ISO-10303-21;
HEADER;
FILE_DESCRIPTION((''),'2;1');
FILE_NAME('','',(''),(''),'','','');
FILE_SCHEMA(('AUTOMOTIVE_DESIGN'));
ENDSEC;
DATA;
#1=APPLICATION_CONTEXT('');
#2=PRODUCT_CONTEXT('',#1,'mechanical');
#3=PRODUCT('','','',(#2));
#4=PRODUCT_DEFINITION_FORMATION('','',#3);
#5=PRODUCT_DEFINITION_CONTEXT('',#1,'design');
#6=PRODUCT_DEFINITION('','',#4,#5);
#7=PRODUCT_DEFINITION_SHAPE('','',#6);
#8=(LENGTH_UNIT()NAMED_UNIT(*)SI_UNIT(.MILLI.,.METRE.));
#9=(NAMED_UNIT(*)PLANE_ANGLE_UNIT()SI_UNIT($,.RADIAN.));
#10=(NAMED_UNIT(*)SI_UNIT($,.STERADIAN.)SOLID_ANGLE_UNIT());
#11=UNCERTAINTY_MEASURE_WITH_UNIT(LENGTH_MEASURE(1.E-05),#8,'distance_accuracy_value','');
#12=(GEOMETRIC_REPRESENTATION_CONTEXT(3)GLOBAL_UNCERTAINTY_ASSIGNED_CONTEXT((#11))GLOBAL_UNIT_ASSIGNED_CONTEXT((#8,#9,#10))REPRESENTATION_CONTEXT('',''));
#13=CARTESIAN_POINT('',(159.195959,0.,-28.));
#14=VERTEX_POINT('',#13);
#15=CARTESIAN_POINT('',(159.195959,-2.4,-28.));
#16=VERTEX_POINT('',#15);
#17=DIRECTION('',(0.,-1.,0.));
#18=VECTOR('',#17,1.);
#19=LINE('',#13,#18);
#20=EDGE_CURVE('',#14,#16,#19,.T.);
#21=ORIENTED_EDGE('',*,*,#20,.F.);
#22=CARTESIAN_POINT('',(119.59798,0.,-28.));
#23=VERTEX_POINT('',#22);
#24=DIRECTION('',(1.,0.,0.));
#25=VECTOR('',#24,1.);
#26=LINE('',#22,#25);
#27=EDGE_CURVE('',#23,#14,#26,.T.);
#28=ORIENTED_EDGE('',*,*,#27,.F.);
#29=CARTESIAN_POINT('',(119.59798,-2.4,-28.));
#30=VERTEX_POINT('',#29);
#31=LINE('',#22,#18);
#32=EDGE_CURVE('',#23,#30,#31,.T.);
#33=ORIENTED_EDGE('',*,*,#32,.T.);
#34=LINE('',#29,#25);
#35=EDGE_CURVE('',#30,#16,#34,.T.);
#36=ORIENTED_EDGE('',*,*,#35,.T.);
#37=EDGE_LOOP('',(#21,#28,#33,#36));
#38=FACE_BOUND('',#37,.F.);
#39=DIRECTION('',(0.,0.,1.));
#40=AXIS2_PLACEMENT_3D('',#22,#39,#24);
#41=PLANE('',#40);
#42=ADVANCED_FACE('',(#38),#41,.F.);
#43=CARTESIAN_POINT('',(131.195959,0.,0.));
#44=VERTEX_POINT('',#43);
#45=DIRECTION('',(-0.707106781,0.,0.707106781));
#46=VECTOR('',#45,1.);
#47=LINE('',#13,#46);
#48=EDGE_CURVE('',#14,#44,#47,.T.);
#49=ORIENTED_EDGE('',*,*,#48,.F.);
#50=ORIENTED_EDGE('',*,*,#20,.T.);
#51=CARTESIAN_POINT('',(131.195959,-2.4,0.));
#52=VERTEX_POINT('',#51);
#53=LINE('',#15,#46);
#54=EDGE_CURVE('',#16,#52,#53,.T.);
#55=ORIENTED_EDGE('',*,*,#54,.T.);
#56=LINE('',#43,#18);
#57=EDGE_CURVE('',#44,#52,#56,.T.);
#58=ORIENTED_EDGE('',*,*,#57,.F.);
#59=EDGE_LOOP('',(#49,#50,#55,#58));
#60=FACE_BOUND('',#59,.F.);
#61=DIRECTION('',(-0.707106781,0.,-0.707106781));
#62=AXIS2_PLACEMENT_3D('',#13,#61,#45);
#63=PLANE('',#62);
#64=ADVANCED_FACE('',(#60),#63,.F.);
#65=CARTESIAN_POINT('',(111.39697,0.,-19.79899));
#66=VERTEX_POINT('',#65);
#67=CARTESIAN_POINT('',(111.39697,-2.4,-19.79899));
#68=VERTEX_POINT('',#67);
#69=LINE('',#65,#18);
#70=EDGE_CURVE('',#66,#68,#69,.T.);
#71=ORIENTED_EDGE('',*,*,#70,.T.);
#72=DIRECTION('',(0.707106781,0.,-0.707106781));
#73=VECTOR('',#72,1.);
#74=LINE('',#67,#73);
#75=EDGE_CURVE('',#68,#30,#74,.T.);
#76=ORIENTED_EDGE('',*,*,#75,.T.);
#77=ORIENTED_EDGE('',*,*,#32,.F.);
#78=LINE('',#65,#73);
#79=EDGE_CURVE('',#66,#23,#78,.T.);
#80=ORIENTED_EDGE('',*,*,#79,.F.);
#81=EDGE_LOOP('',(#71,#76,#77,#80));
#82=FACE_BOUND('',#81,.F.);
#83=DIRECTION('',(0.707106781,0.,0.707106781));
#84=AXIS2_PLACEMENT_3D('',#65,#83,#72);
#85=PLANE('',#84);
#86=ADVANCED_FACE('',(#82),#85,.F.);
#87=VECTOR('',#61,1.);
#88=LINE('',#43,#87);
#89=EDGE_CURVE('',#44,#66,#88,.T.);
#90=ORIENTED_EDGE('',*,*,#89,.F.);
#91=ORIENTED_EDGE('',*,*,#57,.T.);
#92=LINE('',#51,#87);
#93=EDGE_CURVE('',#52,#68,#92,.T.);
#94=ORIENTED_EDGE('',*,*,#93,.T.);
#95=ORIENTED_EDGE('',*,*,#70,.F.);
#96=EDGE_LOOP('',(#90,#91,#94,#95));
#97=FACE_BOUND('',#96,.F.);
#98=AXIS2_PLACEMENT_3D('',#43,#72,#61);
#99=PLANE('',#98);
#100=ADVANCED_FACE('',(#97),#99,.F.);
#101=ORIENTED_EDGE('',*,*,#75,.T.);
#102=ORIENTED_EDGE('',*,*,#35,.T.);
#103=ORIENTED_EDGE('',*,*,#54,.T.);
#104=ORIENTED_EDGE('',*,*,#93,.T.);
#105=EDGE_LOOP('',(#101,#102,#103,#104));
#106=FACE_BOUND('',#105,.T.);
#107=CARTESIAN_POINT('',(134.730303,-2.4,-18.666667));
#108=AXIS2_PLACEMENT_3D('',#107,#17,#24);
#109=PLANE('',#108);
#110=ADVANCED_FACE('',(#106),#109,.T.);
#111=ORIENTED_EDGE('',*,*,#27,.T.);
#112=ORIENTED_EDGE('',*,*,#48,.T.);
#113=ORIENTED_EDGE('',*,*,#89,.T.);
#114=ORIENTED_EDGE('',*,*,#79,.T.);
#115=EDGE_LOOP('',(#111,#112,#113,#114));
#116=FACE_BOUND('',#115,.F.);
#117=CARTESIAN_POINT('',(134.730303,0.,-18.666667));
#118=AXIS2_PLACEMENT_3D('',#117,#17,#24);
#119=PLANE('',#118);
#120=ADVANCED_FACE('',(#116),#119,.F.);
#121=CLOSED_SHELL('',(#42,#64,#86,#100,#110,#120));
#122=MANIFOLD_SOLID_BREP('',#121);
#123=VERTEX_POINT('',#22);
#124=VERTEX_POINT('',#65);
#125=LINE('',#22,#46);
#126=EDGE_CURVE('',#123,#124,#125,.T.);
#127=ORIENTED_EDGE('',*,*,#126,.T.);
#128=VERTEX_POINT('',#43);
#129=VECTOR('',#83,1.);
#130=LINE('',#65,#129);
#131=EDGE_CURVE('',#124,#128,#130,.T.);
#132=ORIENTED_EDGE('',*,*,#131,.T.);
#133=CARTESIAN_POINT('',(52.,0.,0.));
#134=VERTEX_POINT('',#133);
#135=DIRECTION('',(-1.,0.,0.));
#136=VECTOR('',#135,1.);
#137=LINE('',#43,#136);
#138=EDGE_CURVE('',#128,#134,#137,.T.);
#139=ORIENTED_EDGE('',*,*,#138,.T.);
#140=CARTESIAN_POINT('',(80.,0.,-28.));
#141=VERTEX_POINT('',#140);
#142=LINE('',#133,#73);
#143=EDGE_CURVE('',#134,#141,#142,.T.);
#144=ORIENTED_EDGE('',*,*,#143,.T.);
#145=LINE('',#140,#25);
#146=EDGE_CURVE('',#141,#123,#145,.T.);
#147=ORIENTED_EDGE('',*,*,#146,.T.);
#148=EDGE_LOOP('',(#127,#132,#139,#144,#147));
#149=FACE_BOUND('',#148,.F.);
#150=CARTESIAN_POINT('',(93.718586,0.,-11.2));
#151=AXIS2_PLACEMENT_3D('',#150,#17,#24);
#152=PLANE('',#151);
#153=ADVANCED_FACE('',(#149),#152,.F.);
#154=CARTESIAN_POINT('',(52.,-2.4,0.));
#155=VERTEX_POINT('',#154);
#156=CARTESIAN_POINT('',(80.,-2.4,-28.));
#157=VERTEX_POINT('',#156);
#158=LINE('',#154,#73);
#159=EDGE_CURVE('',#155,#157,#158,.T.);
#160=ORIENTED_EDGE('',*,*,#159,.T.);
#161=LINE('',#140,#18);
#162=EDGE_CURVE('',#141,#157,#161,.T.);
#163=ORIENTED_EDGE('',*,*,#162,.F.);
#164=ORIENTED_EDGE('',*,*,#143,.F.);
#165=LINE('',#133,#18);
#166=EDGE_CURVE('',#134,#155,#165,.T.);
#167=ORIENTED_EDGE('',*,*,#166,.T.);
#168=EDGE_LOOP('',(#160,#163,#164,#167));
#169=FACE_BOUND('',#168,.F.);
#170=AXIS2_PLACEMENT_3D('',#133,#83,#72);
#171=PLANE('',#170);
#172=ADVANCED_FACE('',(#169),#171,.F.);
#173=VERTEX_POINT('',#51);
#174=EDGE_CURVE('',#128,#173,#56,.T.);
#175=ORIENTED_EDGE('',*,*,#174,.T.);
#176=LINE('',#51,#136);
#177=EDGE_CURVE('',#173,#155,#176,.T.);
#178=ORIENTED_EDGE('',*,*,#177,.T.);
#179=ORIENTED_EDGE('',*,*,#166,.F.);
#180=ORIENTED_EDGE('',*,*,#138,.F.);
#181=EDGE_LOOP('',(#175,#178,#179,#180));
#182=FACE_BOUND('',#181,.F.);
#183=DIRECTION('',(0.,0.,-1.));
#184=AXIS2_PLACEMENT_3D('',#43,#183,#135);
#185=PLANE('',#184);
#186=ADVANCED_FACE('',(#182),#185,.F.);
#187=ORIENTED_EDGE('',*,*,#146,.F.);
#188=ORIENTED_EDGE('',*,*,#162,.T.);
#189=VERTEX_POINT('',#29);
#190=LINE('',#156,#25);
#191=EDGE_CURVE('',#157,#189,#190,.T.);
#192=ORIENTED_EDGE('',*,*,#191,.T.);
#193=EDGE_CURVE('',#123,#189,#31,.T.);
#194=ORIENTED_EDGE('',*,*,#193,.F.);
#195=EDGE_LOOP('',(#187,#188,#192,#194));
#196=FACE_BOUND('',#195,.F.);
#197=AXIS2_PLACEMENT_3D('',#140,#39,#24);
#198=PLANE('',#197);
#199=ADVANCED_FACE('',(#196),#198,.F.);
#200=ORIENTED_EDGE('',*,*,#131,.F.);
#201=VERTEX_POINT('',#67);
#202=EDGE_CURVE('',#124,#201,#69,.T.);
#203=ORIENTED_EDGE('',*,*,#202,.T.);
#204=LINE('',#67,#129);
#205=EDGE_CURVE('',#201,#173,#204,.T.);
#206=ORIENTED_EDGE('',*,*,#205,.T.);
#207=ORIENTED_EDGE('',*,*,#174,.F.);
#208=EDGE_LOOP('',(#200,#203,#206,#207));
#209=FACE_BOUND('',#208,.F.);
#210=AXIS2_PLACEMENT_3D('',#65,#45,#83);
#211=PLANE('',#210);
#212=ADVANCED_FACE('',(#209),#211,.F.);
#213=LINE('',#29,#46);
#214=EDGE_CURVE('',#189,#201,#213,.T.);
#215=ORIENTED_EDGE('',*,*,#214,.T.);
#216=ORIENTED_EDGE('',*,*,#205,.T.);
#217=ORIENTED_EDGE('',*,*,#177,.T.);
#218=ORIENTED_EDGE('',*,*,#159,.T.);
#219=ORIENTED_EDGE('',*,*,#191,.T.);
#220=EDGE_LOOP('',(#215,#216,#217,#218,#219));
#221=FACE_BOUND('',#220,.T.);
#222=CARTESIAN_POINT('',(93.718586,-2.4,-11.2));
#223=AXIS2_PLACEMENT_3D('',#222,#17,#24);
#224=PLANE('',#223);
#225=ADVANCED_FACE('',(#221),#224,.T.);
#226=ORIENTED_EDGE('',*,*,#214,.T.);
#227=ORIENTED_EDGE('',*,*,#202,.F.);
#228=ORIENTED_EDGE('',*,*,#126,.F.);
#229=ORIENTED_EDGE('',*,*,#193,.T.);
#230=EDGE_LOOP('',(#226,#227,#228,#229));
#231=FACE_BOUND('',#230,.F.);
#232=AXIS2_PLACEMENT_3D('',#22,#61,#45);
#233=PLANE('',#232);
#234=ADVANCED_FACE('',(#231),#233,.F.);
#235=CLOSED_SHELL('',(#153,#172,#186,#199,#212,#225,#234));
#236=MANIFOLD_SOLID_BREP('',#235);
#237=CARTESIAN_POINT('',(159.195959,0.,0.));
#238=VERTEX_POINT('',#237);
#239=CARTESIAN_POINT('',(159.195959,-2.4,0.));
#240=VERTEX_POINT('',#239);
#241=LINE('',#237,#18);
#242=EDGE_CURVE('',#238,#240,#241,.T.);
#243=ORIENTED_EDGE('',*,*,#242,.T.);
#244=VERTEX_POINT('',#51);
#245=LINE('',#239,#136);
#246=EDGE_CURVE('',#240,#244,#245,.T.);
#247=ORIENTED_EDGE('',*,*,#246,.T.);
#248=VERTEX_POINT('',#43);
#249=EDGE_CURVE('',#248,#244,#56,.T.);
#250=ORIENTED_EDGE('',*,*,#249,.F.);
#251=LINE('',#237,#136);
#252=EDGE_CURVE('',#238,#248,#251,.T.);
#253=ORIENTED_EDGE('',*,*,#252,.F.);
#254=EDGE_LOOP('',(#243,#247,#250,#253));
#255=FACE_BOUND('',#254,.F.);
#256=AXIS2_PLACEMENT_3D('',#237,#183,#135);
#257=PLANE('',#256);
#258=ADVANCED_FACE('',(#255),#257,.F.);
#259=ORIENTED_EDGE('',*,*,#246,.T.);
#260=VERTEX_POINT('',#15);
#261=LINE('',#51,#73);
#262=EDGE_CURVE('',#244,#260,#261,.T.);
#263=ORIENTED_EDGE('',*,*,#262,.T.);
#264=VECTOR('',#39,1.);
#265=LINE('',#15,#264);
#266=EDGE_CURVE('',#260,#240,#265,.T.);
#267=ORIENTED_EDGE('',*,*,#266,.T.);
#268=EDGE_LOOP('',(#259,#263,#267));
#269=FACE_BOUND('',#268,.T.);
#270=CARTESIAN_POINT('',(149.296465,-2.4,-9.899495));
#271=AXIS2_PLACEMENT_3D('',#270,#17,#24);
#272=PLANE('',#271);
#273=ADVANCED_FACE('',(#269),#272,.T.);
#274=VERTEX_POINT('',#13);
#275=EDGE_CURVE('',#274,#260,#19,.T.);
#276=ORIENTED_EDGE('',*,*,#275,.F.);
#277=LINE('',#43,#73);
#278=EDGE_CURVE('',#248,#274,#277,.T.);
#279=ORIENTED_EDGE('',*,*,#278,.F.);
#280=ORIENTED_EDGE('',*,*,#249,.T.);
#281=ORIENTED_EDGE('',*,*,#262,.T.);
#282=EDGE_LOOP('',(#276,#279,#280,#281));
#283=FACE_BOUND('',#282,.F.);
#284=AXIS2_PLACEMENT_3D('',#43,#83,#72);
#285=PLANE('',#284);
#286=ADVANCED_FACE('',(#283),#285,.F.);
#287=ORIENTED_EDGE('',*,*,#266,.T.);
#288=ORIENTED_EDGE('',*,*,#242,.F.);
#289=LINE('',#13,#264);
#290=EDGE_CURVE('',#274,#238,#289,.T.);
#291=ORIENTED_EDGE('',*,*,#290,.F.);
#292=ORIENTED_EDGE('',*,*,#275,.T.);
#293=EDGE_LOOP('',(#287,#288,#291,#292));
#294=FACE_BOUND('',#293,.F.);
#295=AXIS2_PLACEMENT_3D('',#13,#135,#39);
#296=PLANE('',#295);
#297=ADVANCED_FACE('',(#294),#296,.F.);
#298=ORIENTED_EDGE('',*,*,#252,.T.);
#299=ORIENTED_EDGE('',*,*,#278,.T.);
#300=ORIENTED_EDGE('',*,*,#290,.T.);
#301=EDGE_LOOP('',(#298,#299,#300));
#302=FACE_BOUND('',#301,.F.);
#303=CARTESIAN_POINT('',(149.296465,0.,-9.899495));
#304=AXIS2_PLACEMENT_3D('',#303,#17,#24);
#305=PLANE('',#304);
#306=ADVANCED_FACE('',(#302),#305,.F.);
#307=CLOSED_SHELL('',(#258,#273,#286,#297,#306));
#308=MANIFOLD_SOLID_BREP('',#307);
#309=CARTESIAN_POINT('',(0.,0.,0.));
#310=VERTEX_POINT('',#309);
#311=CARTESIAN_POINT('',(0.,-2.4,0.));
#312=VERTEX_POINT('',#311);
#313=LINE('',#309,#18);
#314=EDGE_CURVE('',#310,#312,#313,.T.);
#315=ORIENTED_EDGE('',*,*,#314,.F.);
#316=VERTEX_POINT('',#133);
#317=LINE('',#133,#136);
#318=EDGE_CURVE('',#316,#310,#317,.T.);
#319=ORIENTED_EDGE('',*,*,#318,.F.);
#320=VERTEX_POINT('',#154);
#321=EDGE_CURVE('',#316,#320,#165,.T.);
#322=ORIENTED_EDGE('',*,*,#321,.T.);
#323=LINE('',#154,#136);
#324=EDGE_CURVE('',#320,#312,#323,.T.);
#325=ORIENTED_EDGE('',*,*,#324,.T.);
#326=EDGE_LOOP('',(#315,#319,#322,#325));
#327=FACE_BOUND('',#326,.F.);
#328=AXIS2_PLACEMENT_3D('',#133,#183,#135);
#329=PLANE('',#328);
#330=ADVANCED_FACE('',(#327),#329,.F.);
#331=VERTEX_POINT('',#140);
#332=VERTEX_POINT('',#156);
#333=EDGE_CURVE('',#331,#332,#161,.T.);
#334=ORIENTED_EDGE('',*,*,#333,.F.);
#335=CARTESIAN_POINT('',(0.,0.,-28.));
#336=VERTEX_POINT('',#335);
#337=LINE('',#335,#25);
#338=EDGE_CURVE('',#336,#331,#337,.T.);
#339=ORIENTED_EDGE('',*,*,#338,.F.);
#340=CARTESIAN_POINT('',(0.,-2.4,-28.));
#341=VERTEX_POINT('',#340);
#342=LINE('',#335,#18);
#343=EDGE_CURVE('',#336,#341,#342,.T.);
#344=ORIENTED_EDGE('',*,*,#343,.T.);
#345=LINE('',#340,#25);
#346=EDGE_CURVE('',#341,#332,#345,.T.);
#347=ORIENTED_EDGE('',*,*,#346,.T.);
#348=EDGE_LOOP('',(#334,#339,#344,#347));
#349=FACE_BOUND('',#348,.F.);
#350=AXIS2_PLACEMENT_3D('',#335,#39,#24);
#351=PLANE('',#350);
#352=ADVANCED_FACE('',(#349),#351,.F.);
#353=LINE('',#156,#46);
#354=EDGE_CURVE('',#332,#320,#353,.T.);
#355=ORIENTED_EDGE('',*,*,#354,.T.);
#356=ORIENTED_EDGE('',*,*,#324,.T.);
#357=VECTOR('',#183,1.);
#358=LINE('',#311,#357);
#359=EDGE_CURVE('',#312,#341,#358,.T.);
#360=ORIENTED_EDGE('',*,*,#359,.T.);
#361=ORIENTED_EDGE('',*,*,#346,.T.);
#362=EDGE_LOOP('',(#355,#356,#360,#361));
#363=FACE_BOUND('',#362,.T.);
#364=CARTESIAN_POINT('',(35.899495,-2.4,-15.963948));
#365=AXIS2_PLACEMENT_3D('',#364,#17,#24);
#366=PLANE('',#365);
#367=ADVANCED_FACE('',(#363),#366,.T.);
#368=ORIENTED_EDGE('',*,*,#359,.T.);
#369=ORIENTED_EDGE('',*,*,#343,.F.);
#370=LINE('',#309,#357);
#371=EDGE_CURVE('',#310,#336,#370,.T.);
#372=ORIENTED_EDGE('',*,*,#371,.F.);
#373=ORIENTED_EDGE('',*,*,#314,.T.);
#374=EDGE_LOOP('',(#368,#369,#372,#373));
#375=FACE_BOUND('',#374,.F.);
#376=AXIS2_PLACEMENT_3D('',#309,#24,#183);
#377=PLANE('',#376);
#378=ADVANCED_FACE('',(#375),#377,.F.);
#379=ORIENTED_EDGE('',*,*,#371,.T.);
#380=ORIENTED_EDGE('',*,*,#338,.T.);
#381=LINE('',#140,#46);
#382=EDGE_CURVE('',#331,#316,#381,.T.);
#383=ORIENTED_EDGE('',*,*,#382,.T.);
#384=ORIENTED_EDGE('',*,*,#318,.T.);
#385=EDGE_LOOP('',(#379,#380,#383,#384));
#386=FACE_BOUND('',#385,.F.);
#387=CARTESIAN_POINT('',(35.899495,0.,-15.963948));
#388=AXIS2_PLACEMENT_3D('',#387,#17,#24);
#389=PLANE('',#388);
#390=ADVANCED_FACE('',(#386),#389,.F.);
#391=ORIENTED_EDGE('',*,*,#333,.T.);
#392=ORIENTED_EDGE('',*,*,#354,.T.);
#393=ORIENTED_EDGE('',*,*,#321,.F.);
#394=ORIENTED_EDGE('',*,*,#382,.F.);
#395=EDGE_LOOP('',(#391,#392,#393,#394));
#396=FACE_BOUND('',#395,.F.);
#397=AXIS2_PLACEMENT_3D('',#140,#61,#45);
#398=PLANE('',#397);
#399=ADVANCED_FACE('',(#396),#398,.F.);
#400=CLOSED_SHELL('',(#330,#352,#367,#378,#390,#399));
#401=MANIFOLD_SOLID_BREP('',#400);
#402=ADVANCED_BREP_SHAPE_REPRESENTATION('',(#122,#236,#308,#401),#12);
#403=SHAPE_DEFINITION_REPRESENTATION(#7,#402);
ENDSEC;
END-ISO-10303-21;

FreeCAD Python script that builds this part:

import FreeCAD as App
import Part
import Sketcher
Q = App.Units.Quantity


def add_polygon(sketch, points):
    """Adds a closed chain of lines whose ends are joined by coincident constraints."""
    first, n = sketch.GeometryCount, len(points)
    for a, b in zip(points, points[1:] + points[:1]):
        sketch.addGeometry(Part.LineSegment(App.Vector(*a, 0), App.Vector(*b, 0)), False)
    for i in range(n):
        sketch.addConstraint(Sketcher.Constraint("Coincident", first + i, 2, first + (i + 1) % n, 1))

doc = App.newDocument("Part")
body = doc.addObject("PartDesign::Body", "Body")

# Sketch on XZ plane
sketch1 = body.newObject("Sketcher::SketchObject", "Sketch")
sketch1.AttachmentSupport = (doc.getObject("XZ_Plane"), [""])
sketch1.MapMode = "FlatFace"
add_polygon(sketch1, [(52, 0), (0, 0), (0, -28), (80, -28)])  # lines 0-3
sketch1.addConstraint([
    Sketcher.Constraint("Horizontal", 0),
    Sketcher.Constraint("Vertical", 1),
    Sketcher.Constraint("Horizontal", 2),
    Sketcher.Constraint("Coincident", 0, 2, -1, 1),
    Sketcher.Constraint("DistanceX", 0, 2, 0, 1, 52.0),
    Sketcher.Constraint("DistanceX", 2, 1, 2, 2, 80.0),
    Sketcher.Constraint("DistanceY", 1, 2, 1, 1, 28.0),
])
pad1 = body.newObject("PartDesign::Pad", "Pad")
pad1.Profile = sketch1
pad1.Length = 2.4
body2 = doc.addObject("PartDesign::Body", "Body001")

# Sketch on XZ plane
sketch2 = body2.newObject("Sketcher::SketchObject", "Sketch001")
sketch2.AttachmentSupport = (doc.getObject("XZ_Plane001"), [""])
sketch2.MapMode = "FlatFace"
add_polygon(sketch2, [(159, -28), (131, 0), (111, -20), (120, -28)])  # lines 0-3
sketch2.addConstraint([
    Sketcher.Constraint("Horizontal", 3),
    Sketcher.Constraint("PointOnObject", 0, 2, -1),
    Sketcher.Constraint("Perpendicular", 0, 1),
    Sketcher.Constraint("Perpendicular", 1, 2),
    Sketcher.Constraint("Angle", 0, Q("135 deg")),
    Sketcher.Constraint("Distance", 1, 28.0),
    Sketcher.Constraint("DistanceY", 2, 2, -1, 1, 28.0),
    Sketcher.Constraint("DistanceX", -1, 1, 0, 2, 131.195959),
])
pad2 = body2.newObject("PartDesign::Pad", "Pad001")
pad2.Profile = sketch2
pad2.Length = 2.4
body3 = doc.addObject("PartDesign::Body", "Body002")

# Sketch on XZ plane
sketch3 = body3.newObject("Sketcher::SketchObject", "Sketch002")
sketch3.AttachmentSupport = (doc.getObject("XZ_Plane002"), [""])
sketch3.MapMode = "FlatFace"
add_polygon(sketch3, [(131, 0), (52, 0), (80, -28), (120, -28), (111, -20)])  # lines 0-4
sketch3.addConstraint([
    Sketcher.Constraint("Horizontal", 0),
    Sketcher.Constraint("Horizontal", 2),
    Sketcher.Constraint("PointOnObject", 0, 2, -1),
    Sketcher.Constraint("Parallel", 1, 3),
    Sketcher.Constraint("Perpendicular", 3, 4),
    Sketcher.Constraint("Angle", 1, Q("-45 deg")),
    Sketcher.Constraint("Distance", 4, 28.0),
    Sketcher.Constraint("DistanceX", -1, 1, 0, 2, 52.0),
    Sketcher.Constraint("DistanceX", -1, 1, 1, 2, 80.0),
    Sketcher.Constraint("DistanceX", 0, 2, 0, 1, 79.195959),
])
pad3 = body3.newObject("PartDesign::Pad", "Pad002")
pad3.Profile = sketch3
pad3.Length = 2.4
body4 = doc.addObject("PartDesign::Body", "Body003")

# Sketch on XZ plane
sketch4 = body4.newObject("Sketcher::SketchObject", "Sketch003")
sketch4.AttachmentSupport = (doc.getObject("XZ_Plane003"), [""])
sketch4.MapMode = "FlatFace"
add_polygon(sketch4, [(159, 0), (131, 0), (159, -28)])  # lines 0-2
sketch4.addConstraint([
    Sketcher.Constraint("Horizontal", 0),
    Sketcher.Constraint("Vertical", 2),
    Sketcher.Constraint("PointOnObject", 0, 2, -1),
    Sketcher.Constraint("Equal", 0, 2),
    Sketcher.Constraint("DistanceX", 0, 2, 0, 1, 28.0),
    Sketcher.Constraint("DistanceX", -1, 1, 0, 2, 131.195959),
])
pad4 = body4.newObject("PartDesign::Pad", "Pad003")
pad4.Profile = sketch4
pad4.Length = 2.4

doc.recompute()
